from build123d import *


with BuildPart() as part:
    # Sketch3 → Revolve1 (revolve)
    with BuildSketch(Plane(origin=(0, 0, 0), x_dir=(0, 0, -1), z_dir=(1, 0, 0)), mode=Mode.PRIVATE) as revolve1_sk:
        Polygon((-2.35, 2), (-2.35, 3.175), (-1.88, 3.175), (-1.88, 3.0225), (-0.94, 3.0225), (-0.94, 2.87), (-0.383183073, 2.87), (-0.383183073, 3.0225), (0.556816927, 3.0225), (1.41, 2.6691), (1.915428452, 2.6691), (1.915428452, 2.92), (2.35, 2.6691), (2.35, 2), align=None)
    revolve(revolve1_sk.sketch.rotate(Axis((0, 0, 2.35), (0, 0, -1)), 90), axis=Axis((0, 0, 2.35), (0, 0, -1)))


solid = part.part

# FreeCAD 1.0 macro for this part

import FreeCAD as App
import Part
import Sketcher
from FreeCAD import Vector
Q = App.Units.Quantity


def add_polygon(sketch, points):
    """Adds a closed chain of lines whose ends are joined by coincident constraints."""
    first, n = sketch.GeometryCount, len(points)
    for a, b in zip(points, points[1:] + points[:1]):
        sketch.addGeometry(Part.LineSegment(App.Vector(*a, 0), App.Vector(*b, 0)), False)
    for i in range(n):
        sketch.addConstraint(Sketcher.Constraint("Coincident", first + i, 2, first + (i + 1) % n, 1))

doc = App.newDocument("Part")
body = doc.addObject("PartDesign::Body", "Body")

# Sketch on YZ plane
sketch1 = doc.addObject("Sketcher::SketchObject", "Sketch")
body.addObject(sketch1)
sketch1.AttachmentSupport = (doc.YZ_Plane, [""])
sketch1.MapMode = "FlatFace"
add_polygon(sketch1, [(3.17, 2.35), (2, 2.35), (2, -2.35), (2.67, -2.35), (2.92, -1.92), (2.67, -1.92), (2.67, -1.41), (3.02, -0.56), (3.02, 0.38), (2.87, 0.38), (2.87, 0.94), (3.02, 0.94), (3.02, 1.88), (3.17, 1.88)])  # lines 0-13
sketch1.addConstraint([
    Sketcher.Constraint("Horizontal", 0),
    Sketcher.Constraint("Vertical", 1),
    Sketcher.Constraint("Horizontal", 2),
    Sketcher.Constraint("Horizontal", 4),
    Sketcher.Constraint("Vertical", 5),
    Sketcher.Constraint("Vertical", 7),
    Sketcher.Constraint("Horizontal", 8),
    Sketcher.Constraint("Vertical", 9),
    Sketcher.Constraint("Horizontal", 10),
    Sketcher.Constraint("Vertical", 11),
    Sketcher.Constraint("Horizontal", 12),
    Sketcher.Constraint("Vertical", 13),
    Sketcher.Constraint("Vertical", 2, 2, 4, 2),
    Sketcher.Constraint("Vertical", 7, 2, 10, 2),
    Sketcher.Constraint("Equal", 10, 12),
    Sketcher.Constraint("Equal", 7, 11),
    Sketcher.Constraint("Angle", 3, Q("60 deg")),
    Sketcher.Constraint("DistanceY", 1, 2, 1, 1, Q("4.7 mm")),
    Sketcher.Constraint("DistanceX", -1, 1, 0, 2, Q("2 mm")),
    Sketcher.Constraint("Angle", 6, Q("67.5 deg")),
    Sketcher.Constraint("DistanceY", 7, 1, 7, 2, Q("0.94 mm")),
    Sketcher.Constraint("DistanceY", 13, 1, 13, 2, Q("0.47 mm")),
    Sketcher.Constraint("DistanceX", 0, 2, 0, 1, Q("1.175 mm")),
    Sketcher.Constraint("DistanceY", -1, 1, 0, 2, Q("2.35 mm")),
    Sketcher.Constraint("DistanceX", -1, 1, 3, 2, Q("2.92 mm")),
    Sketcher.Constraint("DistanceY", 5, 2, -1, 1, Q("1.41 mm")),
    Sketcher.Constraint("DistanceX", -1, 1, 8, 2, Q("2.87 mm")),
    Sketcher.Constraint("DistanceX", 2, 1, 2, 2, Q("0.6691 mm")),
])
revolution = doc.addObject("PartDesign::Revolution", "Revolution")
body.addObject(revolution)
revolution.Profile = sketch1
revolution.ReferenceAxis = (sketch1, ["V_Axis"])
revolution.Angle = 360

doc.recompute()
